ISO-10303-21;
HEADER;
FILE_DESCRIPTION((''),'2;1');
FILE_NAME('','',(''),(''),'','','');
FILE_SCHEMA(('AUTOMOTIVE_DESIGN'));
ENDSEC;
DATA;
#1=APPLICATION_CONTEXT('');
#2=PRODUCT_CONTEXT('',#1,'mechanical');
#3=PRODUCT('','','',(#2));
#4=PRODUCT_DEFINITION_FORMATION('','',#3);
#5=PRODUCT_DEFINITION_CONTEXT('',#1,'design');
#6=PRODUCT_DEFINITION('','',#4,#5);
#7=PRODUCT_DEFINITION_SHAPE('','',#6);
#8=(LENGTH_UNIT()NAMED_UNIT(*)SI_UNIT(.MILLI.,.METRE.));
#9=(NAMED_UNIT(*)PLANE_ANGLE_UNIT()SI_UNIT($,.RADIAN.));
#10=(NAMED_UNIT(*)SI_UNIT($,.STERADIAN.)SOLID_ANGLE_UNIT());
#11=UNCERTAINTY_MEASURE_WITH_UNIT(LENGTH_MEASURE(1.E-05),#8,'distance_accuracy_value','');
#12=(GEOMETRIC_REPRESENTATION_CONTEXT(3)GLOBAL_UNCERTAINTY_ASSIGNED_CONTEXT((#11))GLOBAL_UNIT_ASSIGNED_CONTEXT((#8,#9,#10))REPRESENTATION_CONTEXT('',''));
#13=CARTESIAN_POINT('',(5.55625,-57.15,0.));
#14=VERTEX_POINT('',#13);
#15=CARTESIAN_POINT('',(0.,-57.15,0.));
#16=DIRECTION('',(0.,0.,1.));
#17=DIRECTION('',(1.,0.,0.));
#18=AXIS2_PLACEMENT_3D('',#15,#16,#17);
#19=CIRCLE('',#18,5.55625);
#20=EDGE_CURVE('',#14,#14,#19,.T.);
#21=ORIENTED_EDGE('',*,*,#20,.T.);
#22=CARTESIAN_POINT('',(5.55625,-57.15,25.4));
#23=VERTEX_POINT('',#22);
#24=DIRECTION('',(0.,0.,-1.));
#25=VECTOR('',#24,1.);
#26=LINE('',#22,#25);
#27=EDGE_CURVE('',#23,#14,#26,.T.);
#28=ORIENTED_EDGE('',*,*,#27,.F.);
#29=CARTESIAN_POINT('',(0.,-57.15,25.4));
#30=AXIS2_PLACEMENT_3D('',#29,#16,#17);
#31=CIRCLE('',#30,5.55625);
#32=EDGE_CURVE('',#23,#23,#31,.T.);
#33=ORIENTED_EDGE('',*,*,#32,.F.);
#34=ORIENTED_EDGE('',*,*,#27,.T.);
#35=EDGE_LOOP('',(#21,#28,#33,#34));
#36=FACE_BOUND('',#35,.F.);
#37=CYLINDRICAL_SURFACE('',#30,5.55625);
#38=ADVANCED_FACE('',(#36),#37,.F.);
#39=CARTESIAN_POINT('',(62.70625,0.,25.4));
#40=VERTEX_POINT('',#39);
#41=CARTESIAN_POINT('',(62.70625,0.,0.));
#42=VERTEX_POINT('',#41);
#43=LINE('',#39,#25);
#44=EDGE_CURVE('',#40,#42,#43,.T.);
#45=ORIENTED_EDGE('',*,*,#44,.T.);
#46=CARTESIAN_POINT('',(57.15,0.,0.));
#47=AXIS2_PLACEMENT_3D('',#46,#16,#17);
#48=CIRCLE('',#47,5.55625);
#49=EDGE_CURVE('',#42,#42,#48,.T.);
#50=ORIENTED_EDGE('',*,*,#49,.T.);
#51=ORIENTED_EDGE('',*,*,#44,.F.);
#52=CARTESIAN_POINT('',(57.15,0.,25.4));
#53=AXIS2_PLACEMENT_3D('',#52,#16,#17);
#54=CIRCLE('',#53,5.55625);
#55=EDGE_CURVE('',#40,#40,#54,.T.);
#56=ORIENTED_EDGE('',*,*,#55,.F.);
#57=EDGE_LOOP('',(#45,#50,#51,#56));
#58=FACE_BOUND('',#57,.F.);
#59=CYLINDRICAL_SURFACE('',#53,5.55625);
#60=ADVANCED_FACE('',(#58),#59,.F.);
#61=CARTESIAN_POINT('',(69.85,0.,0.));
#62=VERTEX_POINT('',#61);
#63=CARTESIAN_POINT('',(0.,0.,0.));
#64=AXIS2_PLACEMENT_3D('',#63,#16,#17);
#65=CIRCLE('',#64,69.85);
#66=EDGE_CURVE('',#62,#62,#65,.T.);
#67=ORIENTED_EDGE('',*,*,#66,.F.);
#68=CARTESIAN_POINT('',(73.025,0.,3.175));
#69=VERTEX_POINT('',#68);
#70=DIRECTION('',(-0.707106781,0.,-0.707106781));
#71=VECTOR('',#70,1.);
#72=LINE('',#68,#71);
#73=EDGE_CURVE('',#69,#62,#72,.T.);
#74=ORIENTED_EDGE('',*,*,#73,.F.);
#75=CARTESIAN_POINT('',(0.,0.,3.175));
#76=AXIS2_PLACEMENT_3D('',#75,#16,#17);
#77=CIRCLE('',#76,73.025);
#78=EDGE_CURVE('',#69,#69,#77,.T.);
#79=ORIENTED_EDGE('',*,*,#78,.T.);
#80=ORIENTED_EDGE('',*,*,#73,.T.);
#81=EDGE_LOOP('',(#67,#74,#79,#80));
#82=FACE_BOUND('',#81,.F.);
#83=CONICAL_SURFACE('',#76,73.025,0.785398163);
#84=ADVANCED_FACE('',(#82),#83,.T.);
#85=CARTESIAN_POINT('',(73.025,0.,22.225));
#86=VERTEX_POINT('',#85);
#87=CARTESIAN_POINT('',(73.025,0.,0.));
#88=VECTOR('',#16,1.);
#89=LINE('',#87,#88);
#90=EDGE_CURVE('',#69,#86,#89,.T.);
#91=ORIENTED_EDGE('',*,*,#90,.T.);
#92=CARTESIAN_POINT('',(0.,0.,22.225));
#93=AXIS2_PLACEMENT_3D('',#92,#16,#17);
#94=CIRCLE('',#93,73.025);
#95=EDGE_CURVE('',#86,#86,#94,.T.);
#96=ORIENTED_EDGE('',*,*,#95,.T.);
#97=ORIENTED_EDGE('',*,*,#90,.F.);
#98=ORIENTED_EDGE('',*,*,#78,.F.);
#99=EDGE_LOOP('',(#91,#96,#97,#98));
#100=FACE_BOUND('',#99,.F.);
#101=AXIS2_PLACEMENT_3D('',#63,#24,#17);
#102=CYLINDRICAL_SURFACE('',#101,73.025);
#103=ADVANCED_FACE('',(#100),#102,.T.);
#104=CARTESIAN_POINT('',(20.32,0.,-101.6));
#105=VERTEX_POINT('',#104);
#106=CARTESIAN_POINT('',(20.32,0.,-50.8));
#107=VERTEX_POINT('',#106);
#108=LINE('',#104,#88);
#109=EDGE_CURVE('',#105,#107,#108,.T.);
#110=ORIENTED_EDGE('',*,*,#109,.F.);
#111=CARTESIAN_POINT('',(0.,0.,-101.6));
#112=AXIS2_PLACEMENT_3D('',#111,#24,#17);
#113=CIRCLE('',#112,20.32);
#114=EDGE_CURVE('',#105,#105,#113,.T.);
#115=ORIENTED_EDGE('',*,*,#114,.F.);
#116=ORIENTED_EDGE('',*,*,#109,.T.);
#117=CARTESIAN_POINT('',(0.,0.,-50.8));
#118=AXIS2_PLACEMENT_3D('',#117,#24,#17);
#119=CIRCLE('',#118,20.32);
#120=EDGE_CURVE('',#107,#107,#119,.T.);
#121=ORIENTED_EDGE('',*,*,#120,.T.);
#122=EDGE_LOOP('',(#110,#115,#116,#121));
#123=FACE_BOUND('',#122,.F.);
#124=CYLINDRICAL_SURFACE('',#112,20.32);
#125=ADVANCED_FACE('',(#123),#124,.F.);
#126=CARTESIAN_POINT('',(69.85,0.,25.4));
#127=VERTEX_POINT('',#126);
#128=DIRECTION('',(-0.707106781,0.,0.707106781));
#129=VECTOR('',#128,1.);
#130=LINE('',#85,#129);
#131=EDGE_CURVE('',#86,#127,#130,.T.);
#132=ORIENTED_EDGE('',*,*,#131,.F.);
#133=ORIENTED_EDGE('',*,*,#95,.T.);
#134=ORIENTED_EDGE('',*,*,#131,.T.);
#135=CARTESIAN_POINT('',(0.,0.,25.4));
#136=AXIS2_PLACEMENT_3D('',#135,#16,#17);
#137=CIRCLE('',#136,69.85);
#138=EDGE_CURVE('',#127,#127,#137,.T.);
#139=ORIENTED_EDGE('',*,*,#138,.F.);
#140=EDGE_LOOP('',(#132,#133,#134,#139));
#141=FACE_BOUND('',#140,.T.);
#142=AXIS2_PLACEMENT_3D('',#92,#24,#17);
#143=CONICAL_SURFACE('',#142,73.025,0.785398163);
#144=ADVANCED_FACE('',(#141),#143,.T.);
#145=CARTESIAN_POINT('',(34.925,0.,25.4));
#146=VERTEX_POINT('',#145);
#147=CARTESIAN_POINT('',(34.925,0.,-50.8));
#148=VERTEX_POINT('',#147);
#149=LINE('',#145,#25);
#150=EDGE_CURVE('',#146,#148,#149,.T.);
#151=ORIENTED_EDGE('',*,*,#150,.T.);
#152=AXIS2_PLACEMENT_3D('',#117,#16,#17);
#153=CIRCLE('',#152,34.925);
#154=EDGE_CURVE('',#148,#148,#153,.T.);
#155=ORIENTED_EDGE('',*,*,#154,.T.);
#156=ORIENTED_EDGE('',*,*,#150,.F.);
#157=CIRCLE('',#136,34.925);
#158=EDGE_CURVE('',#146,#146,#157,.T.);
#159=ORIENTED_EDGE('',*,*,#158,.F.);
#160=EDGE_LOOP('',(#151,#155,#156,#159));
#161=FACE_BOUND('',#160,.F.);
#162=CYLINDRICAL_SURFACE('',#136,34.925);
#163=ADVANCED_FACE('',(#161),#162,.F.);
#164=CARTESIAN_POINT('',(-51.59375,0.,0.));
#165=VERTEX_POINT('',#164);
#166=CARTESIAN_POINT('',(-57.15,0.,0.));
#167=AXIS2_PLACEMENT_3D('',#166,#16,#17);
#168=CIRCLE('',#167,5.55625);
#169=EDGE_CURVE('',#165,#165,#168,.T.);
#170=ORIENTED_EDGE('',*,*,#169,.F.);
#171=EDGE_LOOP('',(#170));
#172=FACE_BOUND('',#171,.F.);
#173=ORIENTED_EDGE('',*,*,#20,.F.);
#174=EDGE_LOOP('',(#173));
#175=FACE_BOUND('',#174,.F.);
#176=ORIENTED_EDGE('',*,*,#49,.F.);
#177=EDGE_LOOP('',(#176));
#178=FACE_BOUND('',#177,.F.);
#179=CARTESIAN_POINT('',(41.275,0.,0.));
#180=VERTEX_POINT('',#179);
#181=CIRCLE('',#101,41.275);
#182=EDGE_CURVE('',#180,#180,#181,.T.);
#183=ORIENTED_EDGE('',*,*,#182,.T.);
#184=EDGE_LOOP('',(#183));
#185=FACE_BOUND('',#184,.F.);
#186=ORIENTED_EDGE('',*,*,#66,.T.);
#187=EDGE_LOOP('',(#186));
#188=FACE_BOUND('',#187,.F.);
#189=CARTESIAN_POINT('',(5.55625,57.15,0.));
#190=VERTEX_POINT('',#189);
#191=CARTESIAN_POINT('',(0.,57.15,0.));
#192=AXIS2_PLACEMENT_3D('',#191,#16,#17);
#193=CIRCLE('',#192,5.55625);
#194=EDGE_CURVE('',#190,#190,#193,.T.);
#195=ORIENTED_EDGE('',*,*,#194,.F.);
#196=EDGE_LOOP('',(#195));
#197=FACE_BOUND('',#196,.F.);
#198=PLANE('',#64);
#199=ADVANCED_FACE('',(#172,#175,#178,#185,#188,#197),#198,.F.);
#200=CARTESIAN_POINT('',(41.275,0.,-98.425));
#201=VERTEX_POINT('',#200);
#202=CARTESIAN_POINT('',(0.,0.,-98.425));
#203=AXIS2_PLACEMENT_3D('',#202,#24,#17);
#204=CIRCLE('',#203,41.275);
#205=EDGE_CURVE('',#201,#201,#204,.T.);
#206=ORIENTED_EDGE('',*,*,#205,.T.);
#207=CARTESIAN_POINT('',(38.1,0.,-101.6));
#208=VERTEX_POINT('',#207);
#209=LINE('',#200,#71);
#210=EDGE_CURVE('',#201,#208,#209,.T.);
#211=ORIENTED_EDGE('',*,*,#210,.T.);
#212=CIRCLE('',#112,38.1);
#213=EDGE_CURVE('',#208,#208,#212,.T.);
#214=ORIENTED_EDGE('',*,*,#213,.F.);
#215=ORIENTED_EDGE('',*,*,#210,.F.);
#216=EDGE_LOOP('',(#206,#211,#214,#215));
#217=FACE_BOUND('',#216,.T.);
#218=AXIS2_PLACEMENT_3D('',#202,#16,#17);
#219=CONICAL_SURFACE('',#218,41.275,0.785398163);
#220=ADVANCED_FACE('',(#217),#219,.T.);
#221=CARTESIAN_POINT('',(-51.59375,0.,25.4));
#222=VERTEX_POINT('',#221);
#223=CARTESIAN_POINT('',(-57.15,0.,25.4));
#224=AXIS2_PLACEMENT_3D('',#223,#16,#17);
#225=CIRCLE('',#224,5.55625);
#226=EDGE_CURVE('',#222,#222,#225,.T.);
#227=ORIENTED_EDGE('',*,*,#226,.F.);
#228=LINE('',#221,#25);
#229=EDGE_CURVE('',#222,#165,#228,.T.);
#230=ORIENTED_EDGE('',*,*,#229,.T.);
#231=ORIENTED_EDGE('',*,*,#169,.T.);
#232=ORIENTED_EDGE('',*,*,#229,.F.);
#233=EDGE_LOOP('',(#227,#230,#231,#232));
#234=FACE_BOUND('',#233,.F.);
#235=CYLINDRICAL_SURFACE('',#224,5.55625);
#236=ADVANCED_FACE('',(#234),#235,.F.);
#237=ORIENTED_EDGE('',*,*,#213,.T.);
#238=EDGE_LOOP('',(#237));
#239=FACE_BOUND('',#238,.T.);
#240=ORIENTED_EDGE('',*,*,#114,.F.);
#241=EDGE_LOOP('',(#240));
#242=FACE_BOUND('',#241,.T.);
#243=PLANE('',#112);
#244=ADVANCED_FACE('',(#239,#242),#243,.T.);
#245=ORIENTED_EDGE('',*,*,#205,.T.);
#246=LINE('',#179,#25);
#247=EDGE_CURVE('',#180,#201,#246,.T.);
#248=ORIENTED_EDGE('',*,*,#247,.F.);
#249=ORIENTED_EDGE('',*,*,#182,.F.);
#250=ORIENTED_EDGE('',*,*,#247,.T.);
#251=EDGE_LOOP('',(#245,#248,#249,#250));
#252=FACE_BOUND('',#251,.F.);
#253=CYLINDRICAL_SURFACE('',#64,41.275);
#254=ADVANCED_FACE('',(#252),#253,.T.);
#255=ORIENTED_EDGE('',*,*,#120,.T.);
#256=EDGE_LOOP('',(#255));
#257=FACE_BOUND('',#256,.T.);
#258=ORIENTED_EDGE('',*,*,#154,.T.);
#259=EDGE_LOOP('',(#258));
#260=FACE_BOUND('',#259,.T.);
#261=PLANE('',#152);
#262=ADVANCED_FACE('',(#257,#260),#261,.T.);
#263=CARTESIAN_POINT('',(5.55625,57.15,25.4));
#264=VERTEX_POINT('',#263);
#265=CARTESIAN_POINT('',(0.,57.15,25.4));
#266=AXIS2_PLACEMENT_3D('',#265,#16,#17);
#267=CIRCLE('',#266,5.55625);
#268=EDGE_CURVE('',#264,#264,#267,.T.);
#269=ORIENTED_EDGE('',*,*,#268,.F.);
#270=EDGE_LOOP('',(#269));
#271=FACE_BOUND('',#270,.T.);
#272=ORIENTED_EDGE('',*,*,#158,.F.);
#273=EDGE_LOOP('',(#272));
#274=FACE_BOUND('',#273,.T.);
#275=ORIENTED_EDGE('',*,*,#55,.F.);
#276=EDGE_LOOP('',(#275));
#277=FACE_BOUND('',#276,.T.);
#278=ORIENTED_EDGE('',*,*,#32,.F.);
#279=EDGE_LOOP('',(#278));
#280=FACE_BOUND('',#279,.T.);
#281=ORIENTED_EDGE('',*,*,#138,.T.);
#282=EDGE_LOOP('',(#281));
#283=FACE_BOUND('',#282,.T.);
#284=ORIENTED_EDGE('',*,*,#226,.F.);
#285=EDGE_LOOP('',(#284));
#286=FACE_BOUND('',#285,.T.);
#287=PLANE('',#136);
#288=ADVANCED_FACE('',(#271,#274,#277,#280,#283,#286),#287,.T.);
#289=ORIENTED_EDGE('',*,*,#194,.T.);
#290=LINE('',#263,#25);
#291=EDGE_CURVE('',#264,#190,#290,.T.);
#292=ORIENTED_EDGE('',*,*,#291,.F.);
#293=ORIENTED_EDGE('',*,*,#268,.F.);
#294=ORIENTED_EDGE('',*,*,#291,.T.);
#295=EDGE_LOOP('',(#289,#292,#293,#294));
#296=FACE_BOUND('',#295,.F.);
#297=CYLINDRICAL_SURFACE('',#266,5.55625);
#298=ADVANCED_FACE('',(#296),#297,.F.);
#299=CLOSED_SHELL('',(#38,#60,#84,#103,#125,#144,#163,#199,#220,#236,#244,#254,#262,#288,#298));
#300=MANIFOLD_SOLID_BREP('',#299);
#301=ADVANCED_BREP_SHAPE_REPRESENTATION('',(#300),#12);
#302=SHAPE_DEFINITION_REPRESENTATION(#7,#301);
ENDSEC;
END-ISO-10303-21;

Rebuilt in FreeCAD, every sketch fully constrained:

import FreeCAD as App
import Part
import Sketcher

V = App.Vector
Q = App.Units.Quantity


def edges_at(feature, points):
    """Names of the edges that pass closest to the given points."""
    edges = feature.Shape.Edges
    near = lambda p: min(range(len(edges)), key=lambda i: edges[i].distToShape(Part.Vertex(*p))[0])
    return sorted({f"Edge{near(p) + 1}" for p in points})

doc = App.newDocument("Part")
params = doc.addObject("Spreadsheet::Sheet", "Params")
for row, (alias, value) in enumerate([
    ("sketch1_diameter", "5.75 in"),
    ("pad1_length", "1 in"),
    ("sketch2_diameter", "3.25 in"),
    ("pad2_length", "4 in"),
    ("sketch3_diameter", "1.6 in"),
    ("sketch4_diameter", "2.75 in"),
    ("sketch4_diameter2", "0.4375 in"),
    ("pocket2_length", "3 in"),
    ("chamfer_size", "0.125 in"),
], start=1):
    params.set(f"A{row}", alias)
    params.set(f"B{row}", "=" + value)
    params.setAlias(f"B{row}", alias)

body = doc.addObject("PartDesign::Body", "Body")

# Sketch on XY plane
sketch1 = body.newObject("Sketcher::SketchObject", "Sketch")
sketch1.AttachmentSupport = (doc.getObject("XY_Plane"), [""])
sketch1.MapMode = "FlatFace"
sketch1.addGeometry(Part.Circle(V(0, 0, 0), V(0, 0, 1), 73), False)
sketch1.addConstraint(Sketcher.Constraint("Coincident", 0, 3, -1, 1))
sketch1.addConstraint(Sketcher.Constraint("Diameter", 0, Q("5.75 in")))
sketch1.setExpression("Constraints[1]", "Params.sketch1_diameter")
pad1 = body.newObject("PartDesign::Pad", "Pad")
pad1.Profile = sketch1
pad1.setExpression("Length", "Params.pad1_length")

# Sketch on XY plane
sketch2 = body.newObject("Sketcher::SketchObject", "Sketch001")
sketch2.AttachmentSupport = (doc.getObject("XY_Plane"), [""])
sketch2.MapMode = "FlatFace"
sketch2.addGeometry(Part.Circle(V(0, 0, 0), V(0, 0, 1), 41), False)
sketch2.addConstraint(Sketcher.Constraint("Coincident", 0, 3, -1, 1))
sketch2.addConstraint(Sketcher.Constraint("Diameter", 0, Q("3.25 in")))
sketch2.setExpression("Constraints[1]", "Params.sketch2_diameter")
pad2 = body.newObject("PartDesign::Pad", "Pad001")
pad2.Profile = sketch2
pad2.setExpression("Length", "Params.pad2_length")
pad2.Reversed = True

# Sketch on XY plane
sketch3 = body.newObject("Sketcher::SketchObject", "Sketch002")
sketch3.AttachmentSupport = (doc.getObject("XY_Plane"), [""])
sketch3.MapMode = "FlatFace"
sketch3.AttachmentOffset = App.Placement(V(0, 0, -4 * 25.4), App.Rotation())
sketch3.addGeometry(Part.Circle(V(0, 0, 0), V(0, 0, 1), 20), False)
sketch3.addConstraint(Sketcher.Constraint("Coincident", 0, 3, -1, 1))
sketch3.addConstraint(Sketcher.Constraint("Diameter", 0, Q("1.6 in")))
sketch3.setExpression("Constraints[1]", "Params.sketch3_diameter")
pocket1 = body.newObject("PartDesign::Pocket", "Pocket")
pocket1.Profile = sketch3
pocket1.Type = "ThroughAll"
pocket1.Reversed = True

# Sketch on XY plane
sketch4 = body.newObject("Sketcher::SketchObject", "Sketch003")
sketch4.AttachmentSupport = (doc.getObject("XY_Plane"), [""])
sketch4.MapMode = "FlatFace"
sketch4.AttachmentOffset = App.Placement(V(0, 0, 1 * 25.4), App.Rotation())
sketch4.addGeometry(Part.Circle(V(-57, 0, 0), V(0, 0, 1), 6), False)
sketch4.addGeometry(Part.Circle(V(0, 57, 0), V(0, 0, 1), 6), False)
sketch4.addGeometry(Part.Circle(V(57, 0, 0), V(0, 0, 1), 6), False)
sketch4.addGeometry(Part.Circle(V(0, -57, 0), V(0, 0, 1), 6), False)
sketch4.addGeometry(Part.Circle(V(0, 0, 0), V(0, 0, 1), 35), False)
sketch4.addConstraint(Sketcher.Constraint("Coincident", 4, 3, -1, 1))
sketch4.addConstraint(Sketcher.Constraint("Equal", 0, 1))
sketch4.addConstraint(Sketcher.Constraint("Equal", 1, 2))
sketch4.addConstraint(Sketcher.Constraint("Equal", 2, 3))
sketch4.addConstraint(Sketcher.Constraint("Symmetric", 0, 3, 2, 3, -1, 1))
sketch4.addConstraint(Sketcher.Constraint("Symmetric", 1, 3, 3, 3, -1, 1))
sketch4.addConstraint(Sketcher.Constraint("PointOnObject", 0, 3, -1))
sketch4.addConstraint(Sketcher.Constraint("PointOnObject", 1, 3, -2))
sketch4.addConstraint(Sketcher.Constraint("Diameter", 4, Q("2.75 in")))
sketch4.addConstraint(Sketcher.Constraint("Diameter", 0, Q("0.4375 in")))
sketch4.addConstraint(Sketcher.Constraint("DistanceX", 0, 3, 2, 3, Q("4.5 in")))
sketch4.addConstraint(Sketcher.Constraint("DistanceY", 3, 3, 1, 3, Q("4.5 in")))
sketch4.setExpression("Constraints[8]", "Params.sketch4_diameter")
sketch4.setExpression("Constraints[9]", "Params.sketch4_diameter2")
pocket2 = body.newObject("PartDesign::Pocket", "Pocket001")
pocket2.Profile = sketch4
pocket2.setExpression("Length", "Params.pocket2_length")
doc.recompute()

chamfer = body.newObject("PartDesign::Chamfer", "Chamfer")
chamfer.Base = (pocket2, edges_at(pocket2, [(-73.025, 0, 25.4), (-73.025, 0, 0), (-41.275, 0, -101.6)]))
chamfer.setExpression("Size", "Params.chamfer_size")

doc.recompute()
